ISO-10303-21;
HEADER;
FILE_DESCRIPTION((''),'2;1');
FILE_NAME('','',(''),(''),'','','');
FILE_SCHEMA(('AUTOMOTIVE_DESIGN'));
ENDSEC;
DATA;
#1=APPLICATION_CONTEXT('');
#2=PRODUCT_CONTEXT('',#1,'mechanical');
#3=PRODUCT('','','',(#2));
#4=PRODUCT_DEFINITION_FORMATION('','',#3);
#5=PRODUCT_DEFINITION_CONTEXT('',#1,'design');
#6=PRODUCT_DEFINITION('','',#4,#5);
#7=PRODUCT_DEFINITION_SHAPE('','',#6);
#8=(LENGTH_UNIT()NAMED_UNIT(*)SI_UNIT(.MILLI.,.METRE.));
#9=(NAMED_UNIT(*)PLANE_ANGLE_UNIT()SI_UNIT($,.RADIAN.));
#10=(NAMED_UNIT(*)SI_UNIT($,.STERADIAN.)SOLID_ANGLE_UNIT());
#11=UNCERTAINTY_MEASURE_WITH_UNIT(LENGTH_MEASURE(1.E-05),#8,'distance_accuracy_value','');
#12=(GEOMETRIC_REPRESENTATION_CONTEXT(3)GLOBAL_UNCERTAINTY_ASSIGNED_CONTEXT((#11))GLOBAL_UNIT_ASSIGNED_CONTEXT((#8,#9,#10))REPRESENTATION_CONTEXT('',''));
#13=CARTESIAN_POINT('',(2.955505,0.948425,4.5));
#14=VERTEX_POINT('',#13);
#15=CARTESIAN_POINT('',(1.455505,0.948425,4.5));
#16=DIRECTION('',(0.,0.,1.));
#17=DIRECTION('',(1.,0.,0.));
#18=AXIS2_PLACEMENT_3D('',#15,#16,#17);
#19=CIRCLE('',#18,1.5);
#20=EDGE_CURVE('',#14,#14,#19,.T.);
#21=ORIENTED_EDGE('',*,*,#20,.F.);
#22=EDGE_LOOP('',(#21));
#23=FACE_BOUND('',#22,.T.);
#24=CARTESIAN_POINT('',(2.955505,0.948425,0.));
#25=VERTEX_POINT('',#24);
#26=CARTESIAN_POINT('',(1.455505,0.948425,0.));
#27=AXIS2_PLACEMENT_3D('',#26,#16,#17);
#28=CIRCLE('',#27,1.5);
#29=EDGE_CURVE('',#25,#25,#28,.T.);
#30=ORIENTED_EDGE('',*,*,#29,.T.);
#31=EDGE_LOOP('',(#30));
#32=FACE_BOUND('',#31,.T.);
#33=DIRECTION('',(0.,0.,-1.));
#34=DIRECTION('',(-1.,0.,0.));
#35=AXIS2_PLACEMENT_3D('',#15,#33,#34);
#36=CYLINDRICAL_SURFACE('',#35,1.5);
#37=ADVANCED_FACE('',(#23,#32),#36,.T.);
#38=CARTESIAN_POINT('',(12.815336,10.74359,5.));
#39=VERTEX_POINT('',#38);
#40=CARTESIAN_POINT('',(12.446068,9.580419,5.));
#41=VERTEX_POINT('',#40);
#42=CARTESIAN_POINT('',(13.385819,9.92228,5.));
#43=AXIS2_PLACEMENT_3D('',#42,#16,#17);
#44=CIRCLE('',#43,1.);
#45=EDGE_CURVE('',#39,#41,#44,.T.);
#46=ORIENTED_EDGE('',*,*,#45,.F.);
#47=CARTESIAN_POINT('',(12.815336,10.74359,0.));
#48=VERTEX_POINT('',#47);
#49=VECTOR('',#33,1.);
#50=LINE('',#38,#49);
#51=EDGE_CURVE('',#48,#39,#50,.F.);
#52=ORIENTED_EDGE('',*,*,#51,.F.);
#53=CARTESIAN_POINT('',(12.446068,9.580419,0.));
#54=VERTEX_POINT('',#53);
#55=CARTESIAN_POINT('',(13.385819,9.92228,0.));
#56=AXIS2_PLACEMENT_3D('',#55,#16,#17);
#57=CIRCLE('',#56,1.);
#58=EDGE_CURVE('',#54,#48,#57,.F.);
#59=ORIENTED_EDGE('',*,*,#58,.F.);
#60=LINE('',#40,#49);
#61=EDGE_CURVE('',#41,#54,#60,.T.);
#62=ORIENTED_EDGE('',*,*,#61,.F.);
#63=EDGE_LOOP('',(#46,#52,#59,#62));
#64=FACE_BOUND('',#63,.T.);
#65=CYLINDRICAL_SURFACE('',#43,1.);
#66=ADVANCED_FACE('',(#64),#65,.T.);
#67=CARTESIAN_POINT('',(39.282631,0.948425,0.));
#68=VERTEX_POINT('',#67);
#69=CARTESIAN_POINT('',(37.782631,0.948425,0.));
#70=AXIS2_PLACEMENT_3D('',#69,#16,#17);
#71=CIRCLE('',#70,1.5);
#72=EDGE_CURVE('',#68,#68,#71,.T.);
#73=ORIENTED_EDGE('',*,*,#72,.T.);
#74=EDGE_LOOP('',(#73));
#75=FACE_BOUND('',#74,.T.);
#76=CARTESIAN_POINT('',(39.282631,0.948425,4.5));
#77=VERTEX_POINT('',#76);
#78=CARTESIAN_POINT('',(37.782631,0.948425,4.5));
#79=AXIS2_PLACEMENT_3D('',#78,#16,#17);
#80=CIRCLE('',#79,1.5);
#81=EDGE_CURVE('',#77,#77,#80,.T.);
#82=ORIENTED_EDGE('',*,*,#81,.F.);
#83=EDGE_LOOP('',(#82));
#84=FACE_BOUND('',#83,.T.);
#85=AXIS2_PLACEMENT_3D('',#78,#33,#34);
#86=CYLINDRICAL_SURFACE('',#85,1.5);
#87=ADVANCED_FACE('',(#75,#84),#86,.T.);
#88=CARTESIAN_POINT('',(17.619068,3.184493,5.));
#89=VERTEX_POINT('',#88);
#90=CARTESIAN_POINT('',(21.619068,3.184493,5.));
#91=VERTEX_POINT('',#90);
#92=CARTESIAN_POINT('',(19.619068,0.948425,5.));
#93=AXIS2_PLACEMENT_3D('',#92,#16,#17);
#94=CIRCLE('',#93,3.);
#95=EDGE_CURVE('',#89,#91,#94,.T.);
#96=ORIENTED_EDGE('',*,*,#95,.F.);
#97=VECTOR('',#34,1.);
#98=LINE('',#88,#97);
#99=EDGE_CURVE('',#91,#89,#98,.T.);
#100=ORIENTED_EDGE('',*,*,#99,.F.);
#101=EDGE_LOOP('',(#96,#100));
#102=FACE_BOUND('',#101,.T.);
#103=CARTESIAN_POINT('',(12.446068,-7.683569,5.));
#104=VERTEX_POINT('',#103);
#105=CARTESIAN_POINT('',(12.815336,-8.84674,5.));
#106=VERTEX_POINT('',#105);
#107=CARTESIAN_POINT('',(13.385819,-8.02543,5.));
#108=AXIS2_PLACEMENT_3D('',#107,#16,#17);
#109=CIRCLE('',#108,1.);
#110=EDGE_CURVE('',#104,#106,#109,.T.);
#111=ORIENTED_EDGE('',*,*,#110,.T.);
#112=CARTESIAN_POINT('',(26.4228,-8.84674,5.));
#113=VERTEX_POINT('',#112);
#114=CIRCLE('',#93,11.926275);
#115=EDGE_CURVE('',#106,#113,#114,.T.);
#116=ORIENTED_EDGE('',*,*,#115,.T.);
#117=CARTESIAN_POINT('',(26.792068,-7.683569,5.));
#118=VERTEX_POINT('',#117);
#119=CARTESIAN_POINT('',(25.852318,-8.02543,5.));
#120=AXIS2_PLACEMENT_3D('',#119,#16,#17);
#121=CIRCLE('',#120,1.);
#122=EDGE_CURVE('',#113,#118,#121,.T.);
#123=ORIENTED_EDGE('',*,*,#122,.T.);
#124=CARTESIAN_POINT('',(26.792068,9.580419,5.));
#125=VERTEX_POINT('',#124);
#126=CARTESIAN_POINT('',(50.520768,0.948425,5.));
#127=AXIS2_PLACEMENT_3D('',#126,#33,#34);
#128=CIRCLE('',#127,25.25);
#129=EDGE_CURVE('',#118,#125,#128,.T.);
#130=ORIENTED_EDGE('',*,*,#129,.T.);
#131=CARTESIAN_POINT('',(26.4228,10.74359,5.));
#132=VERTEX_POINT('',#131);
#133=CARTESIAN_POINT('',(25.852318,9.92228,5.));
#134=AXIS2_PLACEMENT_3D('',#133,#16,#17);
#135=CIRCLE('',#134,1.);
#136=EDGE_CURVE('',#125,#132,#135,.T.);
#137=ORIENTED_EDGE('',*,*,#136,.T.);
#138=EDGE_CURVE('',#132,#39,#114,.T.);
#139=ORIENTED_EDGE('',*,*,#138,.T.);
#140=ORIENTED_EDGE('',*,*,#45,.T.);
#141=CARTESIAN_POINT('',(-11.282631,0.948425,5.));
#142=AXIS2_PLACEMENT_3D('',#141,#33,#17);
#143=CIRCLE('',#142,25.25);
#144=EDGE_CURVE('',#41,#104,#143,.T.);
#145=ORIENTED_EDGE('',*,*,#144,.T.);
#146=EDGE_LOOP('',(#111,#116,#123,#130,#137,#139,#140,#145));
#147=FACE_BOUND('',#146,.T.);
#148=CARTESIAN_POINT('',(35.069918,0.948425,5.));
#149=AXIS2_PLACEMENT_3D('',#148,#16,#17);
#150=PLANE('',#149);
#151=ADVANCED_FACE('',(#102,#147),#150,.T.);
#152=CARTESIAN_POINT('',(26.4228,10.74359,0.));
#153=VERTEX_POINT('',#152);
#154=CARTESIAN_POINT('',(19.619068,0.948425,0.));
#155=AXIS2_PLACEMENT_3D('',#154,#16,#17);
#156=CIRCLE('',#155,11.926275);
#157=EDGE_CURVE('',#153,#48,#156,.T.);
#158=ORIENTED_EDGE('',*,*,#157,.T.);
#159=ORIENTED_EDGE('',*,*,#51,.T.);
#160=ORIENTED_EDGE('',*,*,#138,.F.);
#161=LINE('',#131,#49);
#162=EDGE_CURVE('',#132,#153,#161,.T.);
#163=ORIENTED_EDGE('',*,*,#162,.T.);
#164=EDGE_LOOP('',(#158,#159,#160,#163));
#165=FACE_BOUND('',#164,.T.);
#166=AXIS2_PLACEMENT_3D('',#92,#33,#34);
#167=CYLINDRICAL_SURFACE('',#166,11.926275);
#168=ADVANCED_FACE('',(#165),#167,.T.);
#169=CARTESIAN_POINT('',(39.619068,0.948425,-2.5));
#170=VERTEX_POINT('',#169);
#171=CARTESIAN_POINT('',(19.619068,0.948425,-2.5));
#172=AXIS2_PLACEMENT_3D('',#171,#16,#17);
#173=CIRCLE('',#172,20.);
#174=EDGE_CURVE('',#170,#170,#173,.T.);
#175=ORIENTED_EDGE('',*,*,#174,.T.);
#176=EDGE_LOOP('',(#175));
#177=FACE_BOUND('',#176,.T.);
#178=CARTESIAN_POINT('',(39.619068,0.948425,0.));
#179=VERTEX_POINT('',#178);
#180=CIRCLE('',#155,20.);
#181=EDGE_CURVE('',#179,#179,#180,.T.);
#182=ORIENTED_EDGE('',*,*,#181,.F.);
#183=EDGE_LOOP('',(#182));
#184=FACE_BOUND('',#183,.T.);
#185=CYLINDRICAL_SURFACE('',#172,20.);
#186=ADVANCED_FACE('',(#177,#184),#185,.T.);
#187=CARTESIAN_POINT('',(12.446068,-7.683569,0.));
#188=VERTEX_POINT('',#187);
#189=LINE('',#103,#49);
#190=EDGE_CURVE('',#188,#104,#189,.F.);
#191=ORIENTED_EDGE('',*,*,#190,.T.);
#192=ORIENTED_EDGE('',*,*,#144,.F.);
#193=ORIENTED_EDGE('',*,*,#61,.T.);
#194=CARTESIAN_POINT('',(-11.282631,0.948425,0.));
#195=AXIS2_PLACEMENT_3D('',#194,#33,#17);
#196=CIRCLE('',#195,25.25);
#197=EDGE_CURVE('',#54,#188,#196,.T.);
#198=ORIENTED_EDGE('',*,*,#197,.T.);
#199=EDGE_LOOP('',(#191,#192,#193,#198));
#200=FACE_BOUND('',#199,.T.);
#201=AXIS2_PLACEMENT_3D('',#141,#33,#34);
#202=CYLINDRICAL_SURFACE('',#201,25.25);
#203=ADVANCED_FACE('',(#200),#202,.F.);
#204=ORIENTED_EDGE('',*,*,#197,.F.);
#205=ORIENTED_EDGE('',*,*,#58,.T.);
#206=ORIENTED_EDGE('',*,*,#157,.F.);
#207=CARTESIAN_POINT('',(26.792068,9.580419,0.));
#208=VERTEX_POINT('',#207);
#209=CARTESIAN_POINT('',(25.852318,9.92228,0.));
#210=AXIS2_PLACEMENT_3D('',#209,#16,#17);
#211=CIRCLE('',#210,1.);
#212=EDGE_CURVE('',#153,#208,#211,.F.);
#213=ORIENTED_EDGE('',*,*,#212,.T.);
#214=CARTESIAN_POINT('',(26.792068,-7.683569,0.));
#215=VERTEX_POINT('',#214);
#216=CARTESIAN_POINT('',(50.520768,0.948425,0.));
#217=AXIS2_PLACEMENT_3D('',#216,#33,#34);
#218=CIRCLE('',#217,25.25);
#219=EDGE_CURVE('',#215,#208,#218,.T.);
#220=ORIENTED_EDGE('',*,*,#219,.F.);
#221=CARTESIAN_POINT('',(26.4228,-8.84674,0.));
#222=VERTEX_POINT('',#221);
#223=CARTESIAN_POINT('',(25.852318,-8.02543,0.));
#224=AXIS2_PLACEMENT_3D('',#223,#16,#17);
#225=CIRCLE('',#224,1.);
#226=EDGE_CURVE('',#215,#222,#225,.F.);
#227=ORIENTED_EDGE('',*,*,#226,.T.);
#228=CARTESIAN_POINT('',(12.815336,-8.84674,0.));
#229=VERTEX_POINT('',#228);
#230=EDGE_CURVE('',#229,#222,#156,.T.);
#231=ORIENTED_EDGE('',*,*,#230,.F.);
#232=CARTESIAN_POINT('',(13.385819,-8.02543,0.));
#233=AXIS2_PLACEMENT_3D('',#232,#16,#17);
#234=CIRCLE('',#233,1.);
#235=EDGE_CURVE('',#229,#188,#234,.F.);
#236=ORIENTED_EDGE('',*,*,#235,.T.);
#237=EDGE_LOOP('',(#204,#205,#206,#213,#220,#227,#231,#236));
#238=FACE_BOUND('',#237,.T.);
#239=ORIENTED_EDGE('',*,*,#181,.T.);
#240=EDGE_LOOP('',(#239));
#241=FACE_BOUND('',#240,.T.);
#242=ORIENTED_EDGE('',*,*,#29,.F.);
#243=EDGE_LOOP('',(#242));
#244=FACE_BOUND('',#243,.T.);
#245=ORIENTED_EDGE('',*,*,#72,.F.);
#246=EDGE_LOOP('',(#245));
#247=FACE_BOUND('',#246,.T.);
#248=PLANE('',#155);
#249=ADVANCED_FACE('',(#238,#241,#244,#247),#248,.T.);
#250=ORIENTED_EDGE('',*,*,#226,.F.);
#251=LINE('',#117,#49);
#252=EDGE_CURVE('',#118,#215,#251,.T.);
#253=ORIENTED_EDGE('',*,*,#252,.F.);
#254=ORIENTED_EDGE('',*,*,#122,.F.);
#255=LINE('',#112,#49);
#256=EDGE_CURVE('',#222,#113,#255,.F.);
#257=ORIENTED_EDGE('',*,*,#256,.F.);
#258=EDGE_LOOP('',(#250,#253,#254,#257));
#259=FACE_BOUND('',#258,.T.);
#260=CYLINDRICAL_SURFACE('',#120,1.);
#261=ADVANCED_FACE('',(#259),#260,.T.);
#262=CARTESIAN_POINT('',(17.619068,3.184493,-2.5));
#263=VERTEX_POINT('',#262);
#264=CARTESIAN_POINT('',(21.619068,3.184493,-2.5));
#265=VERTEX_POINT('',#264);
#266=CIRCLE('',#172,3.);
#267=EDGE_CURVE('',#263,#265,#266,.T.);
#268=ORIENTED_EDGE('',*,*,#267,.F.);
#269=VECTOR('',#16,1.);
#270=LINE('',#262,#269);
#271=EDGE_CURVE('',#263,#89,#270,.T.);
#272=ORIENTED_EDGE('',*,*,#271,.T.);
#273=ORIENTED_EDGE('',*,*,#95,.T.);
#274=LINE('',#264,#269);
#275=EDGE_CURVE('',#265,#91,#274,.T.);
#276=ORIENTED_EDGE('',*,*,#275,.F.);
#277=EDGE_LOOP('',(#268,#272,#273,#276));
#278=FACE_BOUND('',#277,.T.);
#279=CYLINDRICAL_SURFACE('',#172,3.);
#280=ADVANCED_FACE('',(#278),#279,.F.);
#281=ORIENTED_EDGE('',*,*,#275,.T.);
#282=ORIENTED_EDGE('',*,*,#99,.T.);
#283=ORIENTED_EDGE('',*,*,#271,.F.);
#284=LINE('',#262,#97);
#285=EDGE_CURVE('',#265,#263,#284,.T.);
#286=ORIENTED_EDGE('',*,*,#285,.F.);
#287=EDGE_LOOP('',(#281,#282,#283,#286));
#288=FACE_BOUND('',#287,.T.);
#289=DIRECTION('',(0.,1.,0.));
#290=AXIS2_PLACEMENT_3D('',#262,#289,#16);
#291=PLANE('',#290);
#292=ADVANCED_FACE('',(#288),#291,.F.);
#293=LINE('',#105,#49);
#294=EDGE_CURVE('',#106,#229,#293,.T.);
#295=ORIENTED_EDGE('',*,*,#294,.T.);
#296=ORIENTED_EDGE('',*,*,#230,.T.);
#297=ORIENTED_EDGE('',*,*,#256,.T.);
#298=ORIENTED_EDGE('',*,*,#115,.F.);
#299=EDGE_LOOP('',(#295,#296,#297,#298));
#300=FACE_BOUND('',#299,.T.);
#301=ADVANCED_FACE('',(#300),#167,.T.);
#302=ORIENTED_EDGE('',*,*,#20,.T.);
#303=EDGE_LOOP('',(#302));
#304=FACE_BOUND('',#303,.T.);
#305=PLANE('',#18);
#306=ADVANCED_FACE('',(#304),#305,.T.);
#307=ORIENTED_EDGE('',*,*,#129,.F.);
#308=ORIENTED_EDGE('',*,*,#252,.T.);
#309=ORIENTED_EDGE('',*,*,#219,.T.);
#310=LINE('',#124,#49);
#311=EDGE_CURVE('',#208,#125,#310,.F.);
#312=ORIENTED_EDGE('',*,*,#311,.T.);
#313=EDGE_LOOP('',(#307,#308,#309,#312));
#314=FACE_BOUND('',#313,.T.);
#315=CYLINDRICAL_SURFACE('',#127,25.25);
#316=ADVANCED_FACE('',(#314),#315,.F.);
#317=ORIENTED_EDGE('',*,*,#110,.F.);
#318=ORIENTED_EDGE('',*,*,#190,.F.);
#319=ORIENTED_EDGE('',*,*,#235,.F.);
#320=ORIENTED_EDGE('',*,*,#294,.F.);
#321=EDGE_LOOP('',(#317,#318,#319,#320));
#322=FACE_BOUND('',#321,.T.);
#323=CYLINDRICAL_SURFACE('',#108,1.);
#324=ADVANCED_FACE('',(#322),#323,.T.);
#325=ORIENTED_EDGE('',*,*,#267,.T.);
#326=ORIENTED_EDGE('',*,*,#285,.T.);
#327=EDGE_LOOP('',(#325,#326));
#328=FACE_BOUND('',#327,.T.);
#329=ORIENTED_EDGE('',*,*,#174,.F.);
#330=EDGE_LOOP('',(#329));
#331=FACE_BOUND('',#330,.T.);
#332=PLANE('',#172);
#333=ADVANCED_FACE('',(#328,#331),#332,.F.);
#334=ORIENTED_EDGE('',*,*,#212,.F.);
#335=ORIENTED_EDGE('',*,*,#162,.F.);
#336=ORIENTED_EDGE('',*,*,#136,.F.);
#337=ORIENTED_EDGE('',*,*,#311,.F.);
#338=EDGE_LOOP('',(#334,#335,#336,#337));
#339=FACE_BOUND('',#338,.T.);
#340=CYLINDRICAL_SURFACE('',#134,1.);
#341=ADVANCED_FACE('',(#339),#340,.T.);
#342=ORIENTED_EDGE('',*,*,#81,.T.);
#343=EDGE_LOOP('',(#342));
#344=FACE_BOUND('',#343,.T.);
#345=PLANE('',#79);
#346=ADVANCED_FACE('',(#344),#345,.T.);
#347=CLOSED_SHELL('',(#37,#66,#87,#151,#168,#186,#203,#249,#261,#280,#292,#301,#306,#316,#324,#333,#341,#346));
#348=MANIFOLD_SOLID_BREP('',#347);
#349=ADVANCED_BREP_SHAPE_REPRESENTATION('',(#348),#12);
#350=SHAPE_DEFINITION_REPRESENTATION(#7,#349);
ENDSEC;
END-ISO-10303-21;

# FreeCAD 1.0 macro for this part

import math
import FreeCAD as App
import Part
import Sketcher


def edges_at(feature, points):
    """Names of the edges that pass closest to the given points."""
    edges = feature.Shape.Edges
    near = lambda p: min(range(len(edges)), key=lambda i: edges[i].distToShape(Part.Vertex(*p))[0])
    return sorted({f"Edge{near(p) + 1}" for p in points})

doc = App.newDocument("Part")
body = doc.addObject("PartDesign::Body", "Body")

sketch1 = body.newObject("Sketcher::SketchObject", "Sketch")
sketch1.AttachmentSupport = (doc.getObject("XY_Plane"), [""])
sketch1.MapMode = "FlatFace"
sketch1.addGeometry([
    Part.ArcOfCircle(Part.Circle(App.Vector(51, 1, 0), App.Vector(0, 0, 1), 25), math.radians(158), math.radians(202)),
    Part.ArcOfCircle(Part.Circle(App.Vector(20, 1, 0), App.Vector(0, 0, 1), 12), math.radians(51), math.radians(129)),
    Part.ArcOfCircle(Part.Circle(App.Vector(-11, 1, 0), App.Vector(0, 0, 1), 25), math.radians(-22), math.radians(22)),
    Part.ArcOfCircle(Part.Circle(App.Vector(20, 1, 0), App.Vector(0, 0, 1), 12), math.radians(-129), math.radians(-51)),
], False)
sketch1.addConstraint([
    Sketcher.Constraint("Coincident", 0, 1, 1, 1),
    Sketcher.Constraint("Coincident", 1, 2, 2, 2),
    Sketcher.Constraint("Coincident", 2, 1, 3, 1),
    Sketcher.Constraint("Coincident", 3, 2, 0, 2),
    Sketcher.Constraint("Coincident", 3, 3, 1, 3),
    Sketcher.Constraint("Equal", 0, 2),
    Sketcher.Constraint("Equal", 1, 3),
    Sketcher.Constraint("Horizontal", 0, 3, 1, 3),
    Sketcher.Constraint("Horizontal", 1, 3, 2, 3),
    Sketcher.Constraint("Horizontal", 0, 1, 1, 2),
    Sketcher.Constraint("Radius", 0, 25.25),
    Sketcher.Constraint("Radius", 1, 11.926275),
    Sketcher.Constraint("DistanceX", 2, 3, 0, 1, 38.337998),
    Sketcher.Constraint("DistanceX", -1, 1, 1, 3, 19.619068),
    Sketcher.Constraint("DistanceY", -1, 1, 0, 1, 10.272452),
])
pad1 = body.newObject("PartDesign::Pad", "Pad")
pad1.Profile = sketch1
pad1.Length = 5

sketch2 = body.newObject("Sketcher::SketchObject", "Sketch001")
sketch2.AttachmentSupport = (doc.getObject("XY_Plane"), [""])
sketch2.MapMode = "FlatFace"
sketch2.addGeometry(Part.Circle(App.Vector(20, 1, 0), App.Vector(0, 0, 1), 20), False)
sketch2.addConstraint([
    Sketcher.Constraint("Diameter", 0, 40.0),
    Sketcher.Constraint("DistanceX", -1, 1, 0, 3, 19.619068),
    Sketcher.Constraint("DistanceY", -1, 1, 0, 3, 0.948425),
])
pad2 = body.newObject("PartDesign::Pad", "Pad001")
pad2.Profile = sketch2
pad2.Length = 2.5
pad2.Reversed = True

sketch3 = body.newObject("Sketcher::SketchObject", "Sketch002")
sketch3.AttachmentSupport = (doc.getObject("XY_Plane"), [""])
sketch3.MapMode = "FlatFace"
sketch3.addGeometry([
    Part.Circle(App.Vector(1.5, 0.9, 0), App.Vector(0, 0, 1), 1.5),
    Part.Circle(App.Vector(37.8, 0.9, 0), App.Vector(0, 0, 1), 1.5),
], False)
sketch3.addConstraint([
    Sketcher.Constraint("Equal", 0, 1),
    Sketcher.Constraint("Horizontal", 0, 3, 1, 3),
    Sketcher.Constraint("Diameter", 0, 3.0),
    Sketcher.Constraint("DistanceX", -1, 1, 1, 3, 37.782631),
    Sketcher.Constraint("DistanceX", -1, 1, 0, 3, 1.455505),
    Sketcher.Constraint("DistanceY", -1, 1, 0, 3, 0.948425),
])
pad3 = body.newObject("PartDesign::Pad", "Pad002")
pad3.Profile = sketch3
pad3.Length = 4.5

sketch4 = body.newObject("Sketcher::SketchObject", "Sketch003")
sketch4.AttachmentSupport = (doc.getObject("XY_Plane"), [""])
sketch4.MapMode = "FlatFace"
sketch4.addGeometry([
    Part.LineSegment(App.Vector(21.6, 3.2, 0), App.Vector(17.6, 3.2, 0)),
    Part.ArcOfCircle(Part.Circle(App.Vector(19.6, 0.9, 0), App.Vector(0, 0, 1), 3), math.radians(132), math.radians(408)),
], False)
sketch4.addConstraint([
    Sketcher.Constraint("Coincident", 0, 1, 1, 2),
    Sketcher.Constraint("Coincident", 1, 1, 0, 2),
    Sketcher.Constraint("Horizontal", 0),
    Sketcher.Constraint("Radius", 1, 3.0),
    Sketcher.Constraint("DistanceX", 0, 2, 0, 1, 4.0),
    Sketcher.Constraint("DistanceX", -1, 1, 1, 3, 19.619068),
    Sketcher.Constraint("DistanceY", -1, 1, 1, 3, 0.948425),
])
pocket1 = body.newObject("PartDesign::Pocket", "Pocket")
pocket1.Profile = sketch4
pocket1.Type = "ThroughAll"
pocket1.Midplane = True
doc.recompute()

fillet = body.newObject("PartDesign::Fillet", "Fillet")
fillet.Base = (pocket1, edges_at(pocket1, [
    (12.183, -8.376, 2.5),
    (12.183, 10.272, 2.5),
    (27.055, 10.272, 2.5),
    (27.055, -8.376, 2.5),
]))
fillet.Radius = 1

doc.recompute()
